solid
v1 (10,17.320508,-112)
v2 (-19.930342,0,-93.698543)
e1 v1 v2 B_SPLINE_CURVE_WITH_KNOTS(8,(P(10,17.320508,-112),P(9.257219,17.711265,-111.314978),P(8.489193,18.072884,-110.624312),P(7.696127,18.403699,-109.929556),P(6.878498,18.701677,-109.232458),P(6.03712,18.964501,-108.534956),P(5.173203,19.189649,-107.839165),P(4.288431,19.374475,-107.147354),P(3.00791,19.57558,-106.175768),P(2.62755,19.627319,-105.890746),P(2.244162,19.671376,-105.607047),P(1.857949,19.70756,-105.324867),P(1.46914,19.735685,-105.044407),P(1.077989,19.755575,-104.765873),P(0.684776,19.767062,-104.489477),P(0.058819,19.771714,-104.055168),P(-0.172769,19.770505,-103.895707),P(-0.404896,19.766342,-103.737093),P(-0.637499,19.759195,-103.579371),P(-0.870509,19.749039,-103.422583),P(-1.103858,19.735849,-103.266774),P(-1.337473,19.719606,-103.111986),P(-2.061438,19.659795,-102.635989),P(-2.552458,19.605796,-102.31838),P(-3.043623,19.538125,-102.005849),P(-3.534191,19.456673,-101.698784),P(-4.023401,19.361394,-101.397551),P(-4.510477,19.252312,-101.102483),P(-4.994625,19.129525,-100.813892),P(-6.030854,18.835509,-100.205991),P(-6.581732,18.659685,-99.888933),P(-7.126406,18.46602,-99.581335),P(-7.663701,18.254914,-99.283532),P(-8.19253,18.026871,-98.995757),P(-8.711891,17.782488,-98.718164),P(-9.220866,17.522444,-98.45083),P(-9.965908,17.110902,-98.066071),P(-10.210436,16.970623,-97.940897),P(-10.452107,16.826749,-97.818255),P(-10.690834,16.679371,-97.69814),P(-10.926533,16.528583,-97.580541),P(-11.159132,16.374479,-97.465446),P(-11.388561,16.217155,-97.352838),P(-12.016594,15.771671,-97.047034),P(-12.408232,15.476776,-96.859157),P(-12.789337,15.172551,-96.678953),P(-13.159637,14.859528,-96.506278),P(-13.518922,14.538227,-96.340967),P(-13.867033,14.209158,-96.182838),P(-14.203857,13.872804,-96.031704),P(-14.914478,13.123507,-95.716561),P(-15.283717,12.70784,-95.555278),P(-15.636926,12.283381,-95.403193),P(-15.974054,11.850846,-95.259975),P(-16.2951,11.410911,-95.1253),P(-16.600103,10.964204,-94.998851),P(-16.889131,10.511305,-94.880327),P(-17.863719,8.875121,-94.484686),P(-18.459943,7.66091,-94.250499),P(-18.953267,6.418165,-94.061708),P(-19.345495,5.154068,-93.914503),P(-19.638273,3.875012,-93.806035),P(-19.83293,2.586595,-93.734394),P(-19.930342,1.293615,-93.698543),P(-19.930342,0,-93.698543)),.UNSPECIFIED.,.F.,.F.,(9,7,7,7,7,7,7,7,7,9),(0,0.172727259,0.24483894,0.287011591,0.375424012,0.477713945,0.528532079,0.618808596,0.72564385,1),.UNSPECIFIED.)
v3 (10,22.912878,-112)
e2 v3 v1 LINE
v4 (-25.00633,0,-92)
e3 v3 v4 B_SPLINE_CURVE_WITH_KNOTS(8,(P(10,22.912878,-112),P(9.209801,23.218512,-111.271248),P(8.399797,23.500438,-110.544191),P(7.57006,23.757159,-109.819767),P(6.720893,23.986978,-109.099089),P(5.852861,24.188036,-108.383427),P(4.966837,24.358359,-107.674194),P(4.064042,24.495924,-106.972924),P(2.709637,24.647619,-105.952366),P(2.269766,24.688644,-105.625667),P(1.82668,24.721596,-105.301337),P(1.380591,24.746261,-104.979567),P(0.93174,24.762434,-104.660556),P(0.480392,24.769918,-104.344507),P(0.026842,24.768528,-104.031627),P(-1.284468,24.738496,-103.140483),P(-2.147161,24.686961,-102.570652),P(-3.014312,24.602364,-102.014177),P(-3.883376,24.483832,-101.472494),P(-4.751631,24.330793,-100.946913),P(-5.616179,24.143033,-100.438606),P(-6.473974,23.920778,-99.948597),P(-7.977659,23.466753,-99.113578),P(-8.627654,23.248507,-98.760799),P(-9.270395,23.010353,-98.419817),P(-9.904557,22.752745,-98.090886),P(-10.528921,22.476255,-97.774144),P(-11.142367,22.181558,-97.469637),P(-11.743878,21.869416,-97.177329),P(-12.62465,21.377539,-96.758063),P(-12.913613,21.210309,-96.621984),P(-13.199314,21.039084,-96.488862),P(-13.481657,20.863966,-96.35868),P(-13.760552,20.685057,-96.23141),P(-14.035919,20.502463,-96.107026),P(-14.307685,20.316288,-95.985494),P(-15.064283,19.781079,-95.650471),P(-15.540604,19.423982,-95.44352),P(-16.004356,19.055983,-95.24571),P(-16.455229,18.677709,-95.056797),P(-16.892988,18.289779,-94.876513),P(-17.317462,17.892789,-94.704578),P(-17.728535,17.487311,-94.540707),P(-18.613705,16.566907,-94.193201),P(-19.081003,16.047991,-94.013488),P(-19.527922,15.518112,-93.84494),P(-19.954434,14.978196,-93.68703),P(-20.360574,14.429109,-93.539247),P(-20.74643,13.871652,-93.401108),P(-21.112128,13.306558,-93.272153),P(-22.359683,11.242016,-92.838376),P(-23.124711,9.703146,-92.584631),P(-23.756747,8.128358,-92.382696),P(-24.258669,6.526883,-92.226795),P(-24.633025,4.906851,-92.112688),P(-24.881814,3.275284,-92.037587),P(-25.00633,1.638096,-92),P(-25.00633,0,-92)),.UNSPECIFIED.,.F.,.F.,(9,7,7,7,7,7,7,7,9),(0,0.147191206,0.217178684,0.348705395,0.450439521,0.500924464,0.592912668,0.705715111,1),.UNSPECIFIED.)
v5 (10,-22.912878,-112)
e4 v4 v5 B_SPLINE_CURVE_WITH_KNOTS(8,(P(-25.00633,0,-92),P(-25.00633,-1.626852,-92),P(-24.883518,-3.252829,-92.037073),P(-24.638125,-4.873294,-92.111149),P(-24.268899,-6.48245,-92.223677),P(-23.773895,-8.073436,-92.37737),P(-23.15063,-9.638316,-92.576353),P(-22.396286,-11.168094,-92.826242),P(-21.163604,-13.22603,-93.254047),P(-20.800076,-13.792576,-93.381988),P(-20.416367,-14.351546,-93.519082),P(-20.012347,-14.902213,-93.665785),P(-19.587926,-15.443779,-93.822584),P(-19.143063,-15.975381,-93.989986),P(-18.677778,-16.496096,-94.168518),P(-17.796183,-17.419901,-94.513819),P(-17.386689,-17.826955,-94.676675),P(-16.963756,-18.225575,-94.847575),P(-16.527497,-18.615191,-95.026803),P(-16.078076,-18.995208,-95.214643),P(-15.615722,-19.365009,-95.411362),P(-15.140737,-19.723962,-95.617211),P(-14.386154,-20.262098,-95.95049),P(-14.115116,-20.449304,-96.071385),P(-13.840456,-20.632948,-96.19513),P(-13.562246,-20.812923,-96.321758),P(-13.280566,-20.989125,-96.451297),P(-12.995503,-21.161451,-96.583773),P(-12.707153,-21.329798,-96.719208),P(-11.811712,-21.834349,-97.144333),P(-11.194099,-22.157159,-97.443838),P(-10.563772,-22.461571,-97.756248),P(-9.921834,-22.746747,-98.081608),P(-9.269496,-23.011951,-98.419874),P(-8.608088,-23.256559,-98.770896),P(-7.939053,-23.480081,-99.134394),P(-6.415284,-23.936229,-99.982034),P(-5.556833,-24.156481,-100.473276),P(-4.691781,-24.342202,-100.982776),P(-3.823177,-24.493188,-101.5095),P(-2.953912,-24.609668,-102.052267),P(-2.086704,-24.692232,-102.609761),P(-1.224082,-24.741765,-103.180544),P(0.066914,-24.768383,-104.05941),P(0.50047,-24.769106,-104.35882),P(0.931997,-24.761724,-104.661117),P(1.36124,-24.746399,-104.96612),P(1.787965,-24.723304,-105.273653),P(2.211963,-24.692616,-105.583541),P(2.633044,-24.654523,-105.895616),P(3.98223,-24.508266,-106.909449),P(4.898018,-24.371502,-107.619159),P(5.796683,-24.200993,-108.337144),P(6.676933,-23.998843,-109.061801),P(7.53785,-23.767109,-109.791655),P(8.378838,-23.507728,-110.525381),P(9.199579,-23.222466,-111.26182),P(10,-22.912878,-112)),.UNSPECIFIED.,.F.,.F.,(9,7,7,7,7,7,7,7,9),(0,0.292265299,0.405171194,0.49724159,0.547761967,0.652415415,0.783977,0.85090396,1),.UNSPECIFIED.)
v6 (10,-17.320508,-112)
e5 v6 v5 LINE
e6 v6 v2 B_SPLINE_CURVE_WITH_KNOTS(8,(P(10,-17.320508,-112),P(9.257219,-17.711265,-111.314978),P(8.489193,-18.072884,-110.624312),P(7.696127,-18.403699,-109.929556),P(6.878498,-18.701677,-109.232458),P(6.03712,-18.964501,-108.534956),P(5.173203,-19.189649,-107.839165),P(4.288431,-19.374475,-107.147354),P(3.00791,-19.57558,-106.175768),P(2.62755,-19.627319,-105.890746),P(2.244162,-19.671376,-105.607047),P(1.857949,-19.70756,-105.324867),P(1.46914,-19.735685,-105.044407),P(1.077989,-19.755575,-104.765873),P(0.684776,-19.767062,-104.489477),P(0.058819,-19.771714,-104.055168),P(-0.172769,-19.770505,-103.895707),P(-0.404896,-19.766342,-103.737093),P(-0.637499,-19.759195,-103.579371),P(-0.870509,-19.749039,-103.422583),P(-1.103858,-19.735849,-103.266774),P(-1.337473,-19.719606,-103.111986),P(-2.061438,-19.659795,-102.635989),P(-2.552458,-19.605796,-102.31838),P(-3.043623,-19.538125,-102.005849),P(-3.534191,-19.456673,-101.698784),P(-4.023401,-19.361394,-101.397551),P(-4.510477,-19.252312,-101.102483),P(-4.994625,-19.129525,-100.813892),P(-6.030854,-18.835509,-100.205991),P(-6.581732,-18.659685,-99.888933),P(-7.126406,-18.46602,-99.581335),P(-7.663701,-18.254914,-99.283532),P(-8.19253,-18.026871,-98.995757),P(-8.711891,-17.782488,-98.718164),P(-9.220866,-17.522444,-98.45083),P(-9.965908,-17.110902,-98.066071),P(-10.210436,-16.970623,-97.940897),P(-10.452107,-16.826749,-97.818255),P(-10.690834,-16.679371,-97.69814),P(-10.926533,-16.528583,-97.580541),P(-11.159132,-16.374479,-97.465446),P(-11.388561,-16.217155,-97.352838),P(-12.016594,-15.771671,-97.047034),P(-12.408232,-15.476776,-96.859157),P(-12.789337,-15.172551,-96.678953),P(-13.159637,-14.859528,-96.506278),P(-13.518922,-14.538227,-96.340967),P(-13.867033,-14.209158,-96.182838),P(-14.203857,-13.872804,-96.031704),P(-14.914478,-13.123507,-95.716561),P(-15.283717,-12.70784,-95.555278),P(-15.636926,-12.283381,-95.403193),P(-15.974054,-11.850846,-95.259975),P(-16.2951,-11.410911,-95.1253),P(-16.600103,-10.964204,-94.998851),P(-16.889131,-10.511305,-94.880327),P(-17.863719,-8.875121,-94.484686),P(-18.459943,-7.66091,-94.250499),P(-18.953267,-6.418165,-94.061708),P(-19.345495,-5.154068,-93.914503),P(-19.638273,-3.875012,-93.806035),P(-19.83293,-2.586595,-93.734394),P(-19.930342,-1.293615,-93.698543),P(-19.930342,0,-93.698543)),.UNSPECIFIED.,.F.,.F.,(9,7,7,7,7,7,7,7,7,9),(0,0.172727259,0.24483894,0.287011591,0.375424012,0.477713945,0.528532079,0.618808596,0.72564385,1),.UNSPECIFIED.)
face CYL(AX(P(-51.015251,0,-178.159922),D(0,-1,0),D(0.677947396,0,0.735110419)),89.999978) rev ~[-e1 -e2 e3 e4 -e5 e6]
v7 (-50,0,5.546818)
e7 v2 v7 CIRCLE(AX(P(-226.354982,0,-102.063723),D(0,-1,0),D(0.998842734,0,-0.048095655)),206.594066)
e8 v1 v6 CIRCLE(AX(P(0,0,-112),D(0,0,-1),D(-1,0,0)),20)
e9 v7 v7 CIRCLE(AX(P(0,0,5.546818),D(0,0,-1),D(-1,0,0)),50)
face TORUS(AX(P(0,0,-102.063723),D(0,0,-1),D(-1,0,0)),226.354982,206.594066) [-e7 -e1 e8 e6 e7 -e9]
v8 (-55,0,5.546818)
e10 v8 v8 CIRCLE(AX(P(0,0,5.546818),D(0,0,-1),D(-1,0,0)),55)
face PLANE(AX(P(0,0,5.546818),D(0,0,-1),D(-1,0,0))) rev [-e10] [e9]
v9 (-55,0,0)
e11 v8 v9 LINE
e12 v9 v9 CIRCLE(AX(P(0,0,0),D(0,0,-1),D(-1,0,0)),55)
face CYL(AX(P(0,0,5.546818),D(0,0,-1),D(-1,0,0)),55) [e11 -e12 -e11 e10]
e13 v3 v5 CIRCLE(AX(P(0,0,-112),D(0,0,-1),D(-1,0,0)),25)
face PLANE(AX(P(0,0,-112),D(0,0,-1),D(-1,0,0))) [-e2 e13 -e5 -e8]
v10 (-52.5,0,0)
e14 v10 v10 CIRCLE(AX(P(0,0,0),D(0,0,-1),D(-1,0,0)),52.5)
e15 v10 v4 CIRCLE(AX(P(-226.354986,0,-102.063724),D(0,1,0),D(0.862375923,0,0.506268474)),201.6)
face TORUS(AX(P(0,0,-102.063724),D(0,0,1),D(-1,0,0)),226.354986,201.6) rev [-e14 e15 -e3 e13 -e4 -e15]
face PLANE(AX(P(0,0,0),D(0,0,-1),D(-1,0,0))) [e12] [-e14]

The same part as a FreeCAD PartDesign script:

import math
import FreeCAD as App
import Part
import Sketcher

V = App.Vector
Q = App.Units.Quantity

doc = App.newDocument("Part")
body = doc.addObject("PartDesign::Body", "Body")

# Sketch on XZ plane
sketch1 = doc.addObject("Sketcher::SketchObject", "Sketch")
body.addObject(sketch1)
sketch1.AttachmentSupport = (doc.XZ_Plane, [""])
sketch1.MapMode = "FlatFace"
sketch1.addGeometry(Part.ArcOfCircle(Part.Circle(V(-226.4, -102.1, 0), V(0, 0, 1), 206.6), math.radians(-3), math.radians(31)), False)
sketch1.addGeometry(Part.LineSegment(V(-50, 5.5, 0), V(-55, 5.5, 0)), False)
sketch1.addGeometry(Part.LineSegment(V(-55, 5.5, 0), V(-55, 0, 0)), False)
sketch1.addGeometry(Part.LineSegment(V(-55, 0, 0), V(-52.5, 0, 0)), False)
sketch1.addGeometry(Part.ArcOfCircle(Part.Circle(V(-226.4, -102.1, 0), V(0, 0, 1), 201.6), math.radians(-3), math.radians(30)), False)
sketch1.addGeometry(Part.LineSegment(V(-25, -112, 0), V(-20, -112, 0)), False)
sketch1.addConstraint(Sketcher.Constraint("Coincident", 0, 2, 1, 1))
sketch1.addConstraint(Sketcher.Constraint("Coincident", 1, 2, 2, 1))
sketch1.addConstraint(Sketcher.Constraint("Coincident", 2, 2, 3, 1))
sketch1.addConstraint(Sketcher.Constraint("Coincident", 3, 2, 4, 2))
sketch1.addConstraint(Sketcher.Constraint("Coincident", 4, 1, 5, 1))
sketch1.addConstraint(Sketcher.Constraint("Coincident", 5, 2, 0, 1))
sketch1.addConstraint(Sketcher.Constraint("Horizontal", 1))
sketch1.addConstraint(Sketcher.Constraint("Vertical", 2))
sketch1.addConstraint(Sketcher.Constraint("Horizontal", 3))
sketch1.addConstraint(Sketcher.Constraint("Horizontal", 5))
sketch1.addConstraint(Sketcher.Constraint("Coincident", 4, 3, 0, 3))
sketch1.addConstraint(Sketcher.Constraint("PointOnObject", 2, 2, -1))
sketch1.addConstraint(Sketcher.Constraint("Equal", 1, 5))
sketch1.addConstraint(Sketcher.Constraint("Radius", 4, Q("201.6 mm")))
sketch1.addConstraint(Sketcher.Constraint("DistanceX", 1, 2, 1, 1, Q("5 mm")))
sketch1.addConstraint(Sketcher.Constraint("DistanceX", 3, 1, 3, 2, Q("2.5 mm")))
sketch1.addConstraint(Sketcher.Constraint("DistanceX", 0, 2, -1, 1, Q("50 mm")))
sketch1.addConstraint(Sketcher.Constraint("DistanceX", 4, 1, -1, 1, Q("25 mm")))
sketch1.addConstraint(Sketcher.Constraint("DistanceY", 4, 1, -1, 1, Q("112 mm")))
revolution = doc.addObject("PartDesign::Revolution", "Revolution")
body.addObject(revolution)
revolution.Profile = sketch1
revolution.ReferenceAxis = (sketch1, ["V_Axis"])
revolution.Angle = 360

# Sketch on XZ plane
sketch2 = doc.addObject("Sketcher::SketchObject", "Sketch001")
body.addObject(sketch2)
sketch2.AttachmentSupport = (doc.XZ_Plane, [""])
sketch2.MapMode = "FlatFace"
sketch2.addGeometry(Part.LineSegment(V(-25, -112, 0), V(10, -112, 0)), False)
sketch2.addGeometry(Part.ArcOfCircle(Part.Circle(V(-51, -178, 0), V(0, 0, 1), 90), math.radians(47), math.radians(73)), False)
sketch2.addGeometry(Part.LineSegment(V(-25, -92, 0), V(-25, -112, 0)), False)
sketch2.addConstraint(Sketcher.Constraint("Coincident", 0, 2, 1, 1))
sketch2.addConstraint(Sketcher.Constraint("Coincident", 1, 2, 2, 1))
sketch2.addConstraint(Sketcher.Constraint("Coincident", 2, 2, 0, 1))
sketch2.addConstraint(Sketcher.Constraint("Horizontal", 0))
sketch2.addConstraint(Sketcher.Constraint("DistanceX", 0, 1, 0, 2, Q("35 mm")))
sketch2.addConstraint(Sketcher.Constraint("Distance", 2, Q("20.000001 mm")))
sketch2.addConstraint(Sketcher.Constraint("DistanceX", -1, 1, 0, 2, Q("10 mm")))
sketch2.addConstraint(Sketcher.Constraint("DistanceY", 0, 2, -1, 1, Q("112 mm")))
sketch2.addConstraint(Sketcher.Constraint("Radius", 1, Q("89.999978 mm")))
sketch2.addConstraint(Sketcher.Constraint("DistanceX", 1, 3, -1, 1, Q("51.015251 mm")))
pocket1 = doc.addObject("PartDesign::Pocket", "Pocket")
body.addObject(pocket1)
pocket1.Profile = sketch2
pocket1.Length = 50
pocket1.Midplane = True

doc.recompute()
